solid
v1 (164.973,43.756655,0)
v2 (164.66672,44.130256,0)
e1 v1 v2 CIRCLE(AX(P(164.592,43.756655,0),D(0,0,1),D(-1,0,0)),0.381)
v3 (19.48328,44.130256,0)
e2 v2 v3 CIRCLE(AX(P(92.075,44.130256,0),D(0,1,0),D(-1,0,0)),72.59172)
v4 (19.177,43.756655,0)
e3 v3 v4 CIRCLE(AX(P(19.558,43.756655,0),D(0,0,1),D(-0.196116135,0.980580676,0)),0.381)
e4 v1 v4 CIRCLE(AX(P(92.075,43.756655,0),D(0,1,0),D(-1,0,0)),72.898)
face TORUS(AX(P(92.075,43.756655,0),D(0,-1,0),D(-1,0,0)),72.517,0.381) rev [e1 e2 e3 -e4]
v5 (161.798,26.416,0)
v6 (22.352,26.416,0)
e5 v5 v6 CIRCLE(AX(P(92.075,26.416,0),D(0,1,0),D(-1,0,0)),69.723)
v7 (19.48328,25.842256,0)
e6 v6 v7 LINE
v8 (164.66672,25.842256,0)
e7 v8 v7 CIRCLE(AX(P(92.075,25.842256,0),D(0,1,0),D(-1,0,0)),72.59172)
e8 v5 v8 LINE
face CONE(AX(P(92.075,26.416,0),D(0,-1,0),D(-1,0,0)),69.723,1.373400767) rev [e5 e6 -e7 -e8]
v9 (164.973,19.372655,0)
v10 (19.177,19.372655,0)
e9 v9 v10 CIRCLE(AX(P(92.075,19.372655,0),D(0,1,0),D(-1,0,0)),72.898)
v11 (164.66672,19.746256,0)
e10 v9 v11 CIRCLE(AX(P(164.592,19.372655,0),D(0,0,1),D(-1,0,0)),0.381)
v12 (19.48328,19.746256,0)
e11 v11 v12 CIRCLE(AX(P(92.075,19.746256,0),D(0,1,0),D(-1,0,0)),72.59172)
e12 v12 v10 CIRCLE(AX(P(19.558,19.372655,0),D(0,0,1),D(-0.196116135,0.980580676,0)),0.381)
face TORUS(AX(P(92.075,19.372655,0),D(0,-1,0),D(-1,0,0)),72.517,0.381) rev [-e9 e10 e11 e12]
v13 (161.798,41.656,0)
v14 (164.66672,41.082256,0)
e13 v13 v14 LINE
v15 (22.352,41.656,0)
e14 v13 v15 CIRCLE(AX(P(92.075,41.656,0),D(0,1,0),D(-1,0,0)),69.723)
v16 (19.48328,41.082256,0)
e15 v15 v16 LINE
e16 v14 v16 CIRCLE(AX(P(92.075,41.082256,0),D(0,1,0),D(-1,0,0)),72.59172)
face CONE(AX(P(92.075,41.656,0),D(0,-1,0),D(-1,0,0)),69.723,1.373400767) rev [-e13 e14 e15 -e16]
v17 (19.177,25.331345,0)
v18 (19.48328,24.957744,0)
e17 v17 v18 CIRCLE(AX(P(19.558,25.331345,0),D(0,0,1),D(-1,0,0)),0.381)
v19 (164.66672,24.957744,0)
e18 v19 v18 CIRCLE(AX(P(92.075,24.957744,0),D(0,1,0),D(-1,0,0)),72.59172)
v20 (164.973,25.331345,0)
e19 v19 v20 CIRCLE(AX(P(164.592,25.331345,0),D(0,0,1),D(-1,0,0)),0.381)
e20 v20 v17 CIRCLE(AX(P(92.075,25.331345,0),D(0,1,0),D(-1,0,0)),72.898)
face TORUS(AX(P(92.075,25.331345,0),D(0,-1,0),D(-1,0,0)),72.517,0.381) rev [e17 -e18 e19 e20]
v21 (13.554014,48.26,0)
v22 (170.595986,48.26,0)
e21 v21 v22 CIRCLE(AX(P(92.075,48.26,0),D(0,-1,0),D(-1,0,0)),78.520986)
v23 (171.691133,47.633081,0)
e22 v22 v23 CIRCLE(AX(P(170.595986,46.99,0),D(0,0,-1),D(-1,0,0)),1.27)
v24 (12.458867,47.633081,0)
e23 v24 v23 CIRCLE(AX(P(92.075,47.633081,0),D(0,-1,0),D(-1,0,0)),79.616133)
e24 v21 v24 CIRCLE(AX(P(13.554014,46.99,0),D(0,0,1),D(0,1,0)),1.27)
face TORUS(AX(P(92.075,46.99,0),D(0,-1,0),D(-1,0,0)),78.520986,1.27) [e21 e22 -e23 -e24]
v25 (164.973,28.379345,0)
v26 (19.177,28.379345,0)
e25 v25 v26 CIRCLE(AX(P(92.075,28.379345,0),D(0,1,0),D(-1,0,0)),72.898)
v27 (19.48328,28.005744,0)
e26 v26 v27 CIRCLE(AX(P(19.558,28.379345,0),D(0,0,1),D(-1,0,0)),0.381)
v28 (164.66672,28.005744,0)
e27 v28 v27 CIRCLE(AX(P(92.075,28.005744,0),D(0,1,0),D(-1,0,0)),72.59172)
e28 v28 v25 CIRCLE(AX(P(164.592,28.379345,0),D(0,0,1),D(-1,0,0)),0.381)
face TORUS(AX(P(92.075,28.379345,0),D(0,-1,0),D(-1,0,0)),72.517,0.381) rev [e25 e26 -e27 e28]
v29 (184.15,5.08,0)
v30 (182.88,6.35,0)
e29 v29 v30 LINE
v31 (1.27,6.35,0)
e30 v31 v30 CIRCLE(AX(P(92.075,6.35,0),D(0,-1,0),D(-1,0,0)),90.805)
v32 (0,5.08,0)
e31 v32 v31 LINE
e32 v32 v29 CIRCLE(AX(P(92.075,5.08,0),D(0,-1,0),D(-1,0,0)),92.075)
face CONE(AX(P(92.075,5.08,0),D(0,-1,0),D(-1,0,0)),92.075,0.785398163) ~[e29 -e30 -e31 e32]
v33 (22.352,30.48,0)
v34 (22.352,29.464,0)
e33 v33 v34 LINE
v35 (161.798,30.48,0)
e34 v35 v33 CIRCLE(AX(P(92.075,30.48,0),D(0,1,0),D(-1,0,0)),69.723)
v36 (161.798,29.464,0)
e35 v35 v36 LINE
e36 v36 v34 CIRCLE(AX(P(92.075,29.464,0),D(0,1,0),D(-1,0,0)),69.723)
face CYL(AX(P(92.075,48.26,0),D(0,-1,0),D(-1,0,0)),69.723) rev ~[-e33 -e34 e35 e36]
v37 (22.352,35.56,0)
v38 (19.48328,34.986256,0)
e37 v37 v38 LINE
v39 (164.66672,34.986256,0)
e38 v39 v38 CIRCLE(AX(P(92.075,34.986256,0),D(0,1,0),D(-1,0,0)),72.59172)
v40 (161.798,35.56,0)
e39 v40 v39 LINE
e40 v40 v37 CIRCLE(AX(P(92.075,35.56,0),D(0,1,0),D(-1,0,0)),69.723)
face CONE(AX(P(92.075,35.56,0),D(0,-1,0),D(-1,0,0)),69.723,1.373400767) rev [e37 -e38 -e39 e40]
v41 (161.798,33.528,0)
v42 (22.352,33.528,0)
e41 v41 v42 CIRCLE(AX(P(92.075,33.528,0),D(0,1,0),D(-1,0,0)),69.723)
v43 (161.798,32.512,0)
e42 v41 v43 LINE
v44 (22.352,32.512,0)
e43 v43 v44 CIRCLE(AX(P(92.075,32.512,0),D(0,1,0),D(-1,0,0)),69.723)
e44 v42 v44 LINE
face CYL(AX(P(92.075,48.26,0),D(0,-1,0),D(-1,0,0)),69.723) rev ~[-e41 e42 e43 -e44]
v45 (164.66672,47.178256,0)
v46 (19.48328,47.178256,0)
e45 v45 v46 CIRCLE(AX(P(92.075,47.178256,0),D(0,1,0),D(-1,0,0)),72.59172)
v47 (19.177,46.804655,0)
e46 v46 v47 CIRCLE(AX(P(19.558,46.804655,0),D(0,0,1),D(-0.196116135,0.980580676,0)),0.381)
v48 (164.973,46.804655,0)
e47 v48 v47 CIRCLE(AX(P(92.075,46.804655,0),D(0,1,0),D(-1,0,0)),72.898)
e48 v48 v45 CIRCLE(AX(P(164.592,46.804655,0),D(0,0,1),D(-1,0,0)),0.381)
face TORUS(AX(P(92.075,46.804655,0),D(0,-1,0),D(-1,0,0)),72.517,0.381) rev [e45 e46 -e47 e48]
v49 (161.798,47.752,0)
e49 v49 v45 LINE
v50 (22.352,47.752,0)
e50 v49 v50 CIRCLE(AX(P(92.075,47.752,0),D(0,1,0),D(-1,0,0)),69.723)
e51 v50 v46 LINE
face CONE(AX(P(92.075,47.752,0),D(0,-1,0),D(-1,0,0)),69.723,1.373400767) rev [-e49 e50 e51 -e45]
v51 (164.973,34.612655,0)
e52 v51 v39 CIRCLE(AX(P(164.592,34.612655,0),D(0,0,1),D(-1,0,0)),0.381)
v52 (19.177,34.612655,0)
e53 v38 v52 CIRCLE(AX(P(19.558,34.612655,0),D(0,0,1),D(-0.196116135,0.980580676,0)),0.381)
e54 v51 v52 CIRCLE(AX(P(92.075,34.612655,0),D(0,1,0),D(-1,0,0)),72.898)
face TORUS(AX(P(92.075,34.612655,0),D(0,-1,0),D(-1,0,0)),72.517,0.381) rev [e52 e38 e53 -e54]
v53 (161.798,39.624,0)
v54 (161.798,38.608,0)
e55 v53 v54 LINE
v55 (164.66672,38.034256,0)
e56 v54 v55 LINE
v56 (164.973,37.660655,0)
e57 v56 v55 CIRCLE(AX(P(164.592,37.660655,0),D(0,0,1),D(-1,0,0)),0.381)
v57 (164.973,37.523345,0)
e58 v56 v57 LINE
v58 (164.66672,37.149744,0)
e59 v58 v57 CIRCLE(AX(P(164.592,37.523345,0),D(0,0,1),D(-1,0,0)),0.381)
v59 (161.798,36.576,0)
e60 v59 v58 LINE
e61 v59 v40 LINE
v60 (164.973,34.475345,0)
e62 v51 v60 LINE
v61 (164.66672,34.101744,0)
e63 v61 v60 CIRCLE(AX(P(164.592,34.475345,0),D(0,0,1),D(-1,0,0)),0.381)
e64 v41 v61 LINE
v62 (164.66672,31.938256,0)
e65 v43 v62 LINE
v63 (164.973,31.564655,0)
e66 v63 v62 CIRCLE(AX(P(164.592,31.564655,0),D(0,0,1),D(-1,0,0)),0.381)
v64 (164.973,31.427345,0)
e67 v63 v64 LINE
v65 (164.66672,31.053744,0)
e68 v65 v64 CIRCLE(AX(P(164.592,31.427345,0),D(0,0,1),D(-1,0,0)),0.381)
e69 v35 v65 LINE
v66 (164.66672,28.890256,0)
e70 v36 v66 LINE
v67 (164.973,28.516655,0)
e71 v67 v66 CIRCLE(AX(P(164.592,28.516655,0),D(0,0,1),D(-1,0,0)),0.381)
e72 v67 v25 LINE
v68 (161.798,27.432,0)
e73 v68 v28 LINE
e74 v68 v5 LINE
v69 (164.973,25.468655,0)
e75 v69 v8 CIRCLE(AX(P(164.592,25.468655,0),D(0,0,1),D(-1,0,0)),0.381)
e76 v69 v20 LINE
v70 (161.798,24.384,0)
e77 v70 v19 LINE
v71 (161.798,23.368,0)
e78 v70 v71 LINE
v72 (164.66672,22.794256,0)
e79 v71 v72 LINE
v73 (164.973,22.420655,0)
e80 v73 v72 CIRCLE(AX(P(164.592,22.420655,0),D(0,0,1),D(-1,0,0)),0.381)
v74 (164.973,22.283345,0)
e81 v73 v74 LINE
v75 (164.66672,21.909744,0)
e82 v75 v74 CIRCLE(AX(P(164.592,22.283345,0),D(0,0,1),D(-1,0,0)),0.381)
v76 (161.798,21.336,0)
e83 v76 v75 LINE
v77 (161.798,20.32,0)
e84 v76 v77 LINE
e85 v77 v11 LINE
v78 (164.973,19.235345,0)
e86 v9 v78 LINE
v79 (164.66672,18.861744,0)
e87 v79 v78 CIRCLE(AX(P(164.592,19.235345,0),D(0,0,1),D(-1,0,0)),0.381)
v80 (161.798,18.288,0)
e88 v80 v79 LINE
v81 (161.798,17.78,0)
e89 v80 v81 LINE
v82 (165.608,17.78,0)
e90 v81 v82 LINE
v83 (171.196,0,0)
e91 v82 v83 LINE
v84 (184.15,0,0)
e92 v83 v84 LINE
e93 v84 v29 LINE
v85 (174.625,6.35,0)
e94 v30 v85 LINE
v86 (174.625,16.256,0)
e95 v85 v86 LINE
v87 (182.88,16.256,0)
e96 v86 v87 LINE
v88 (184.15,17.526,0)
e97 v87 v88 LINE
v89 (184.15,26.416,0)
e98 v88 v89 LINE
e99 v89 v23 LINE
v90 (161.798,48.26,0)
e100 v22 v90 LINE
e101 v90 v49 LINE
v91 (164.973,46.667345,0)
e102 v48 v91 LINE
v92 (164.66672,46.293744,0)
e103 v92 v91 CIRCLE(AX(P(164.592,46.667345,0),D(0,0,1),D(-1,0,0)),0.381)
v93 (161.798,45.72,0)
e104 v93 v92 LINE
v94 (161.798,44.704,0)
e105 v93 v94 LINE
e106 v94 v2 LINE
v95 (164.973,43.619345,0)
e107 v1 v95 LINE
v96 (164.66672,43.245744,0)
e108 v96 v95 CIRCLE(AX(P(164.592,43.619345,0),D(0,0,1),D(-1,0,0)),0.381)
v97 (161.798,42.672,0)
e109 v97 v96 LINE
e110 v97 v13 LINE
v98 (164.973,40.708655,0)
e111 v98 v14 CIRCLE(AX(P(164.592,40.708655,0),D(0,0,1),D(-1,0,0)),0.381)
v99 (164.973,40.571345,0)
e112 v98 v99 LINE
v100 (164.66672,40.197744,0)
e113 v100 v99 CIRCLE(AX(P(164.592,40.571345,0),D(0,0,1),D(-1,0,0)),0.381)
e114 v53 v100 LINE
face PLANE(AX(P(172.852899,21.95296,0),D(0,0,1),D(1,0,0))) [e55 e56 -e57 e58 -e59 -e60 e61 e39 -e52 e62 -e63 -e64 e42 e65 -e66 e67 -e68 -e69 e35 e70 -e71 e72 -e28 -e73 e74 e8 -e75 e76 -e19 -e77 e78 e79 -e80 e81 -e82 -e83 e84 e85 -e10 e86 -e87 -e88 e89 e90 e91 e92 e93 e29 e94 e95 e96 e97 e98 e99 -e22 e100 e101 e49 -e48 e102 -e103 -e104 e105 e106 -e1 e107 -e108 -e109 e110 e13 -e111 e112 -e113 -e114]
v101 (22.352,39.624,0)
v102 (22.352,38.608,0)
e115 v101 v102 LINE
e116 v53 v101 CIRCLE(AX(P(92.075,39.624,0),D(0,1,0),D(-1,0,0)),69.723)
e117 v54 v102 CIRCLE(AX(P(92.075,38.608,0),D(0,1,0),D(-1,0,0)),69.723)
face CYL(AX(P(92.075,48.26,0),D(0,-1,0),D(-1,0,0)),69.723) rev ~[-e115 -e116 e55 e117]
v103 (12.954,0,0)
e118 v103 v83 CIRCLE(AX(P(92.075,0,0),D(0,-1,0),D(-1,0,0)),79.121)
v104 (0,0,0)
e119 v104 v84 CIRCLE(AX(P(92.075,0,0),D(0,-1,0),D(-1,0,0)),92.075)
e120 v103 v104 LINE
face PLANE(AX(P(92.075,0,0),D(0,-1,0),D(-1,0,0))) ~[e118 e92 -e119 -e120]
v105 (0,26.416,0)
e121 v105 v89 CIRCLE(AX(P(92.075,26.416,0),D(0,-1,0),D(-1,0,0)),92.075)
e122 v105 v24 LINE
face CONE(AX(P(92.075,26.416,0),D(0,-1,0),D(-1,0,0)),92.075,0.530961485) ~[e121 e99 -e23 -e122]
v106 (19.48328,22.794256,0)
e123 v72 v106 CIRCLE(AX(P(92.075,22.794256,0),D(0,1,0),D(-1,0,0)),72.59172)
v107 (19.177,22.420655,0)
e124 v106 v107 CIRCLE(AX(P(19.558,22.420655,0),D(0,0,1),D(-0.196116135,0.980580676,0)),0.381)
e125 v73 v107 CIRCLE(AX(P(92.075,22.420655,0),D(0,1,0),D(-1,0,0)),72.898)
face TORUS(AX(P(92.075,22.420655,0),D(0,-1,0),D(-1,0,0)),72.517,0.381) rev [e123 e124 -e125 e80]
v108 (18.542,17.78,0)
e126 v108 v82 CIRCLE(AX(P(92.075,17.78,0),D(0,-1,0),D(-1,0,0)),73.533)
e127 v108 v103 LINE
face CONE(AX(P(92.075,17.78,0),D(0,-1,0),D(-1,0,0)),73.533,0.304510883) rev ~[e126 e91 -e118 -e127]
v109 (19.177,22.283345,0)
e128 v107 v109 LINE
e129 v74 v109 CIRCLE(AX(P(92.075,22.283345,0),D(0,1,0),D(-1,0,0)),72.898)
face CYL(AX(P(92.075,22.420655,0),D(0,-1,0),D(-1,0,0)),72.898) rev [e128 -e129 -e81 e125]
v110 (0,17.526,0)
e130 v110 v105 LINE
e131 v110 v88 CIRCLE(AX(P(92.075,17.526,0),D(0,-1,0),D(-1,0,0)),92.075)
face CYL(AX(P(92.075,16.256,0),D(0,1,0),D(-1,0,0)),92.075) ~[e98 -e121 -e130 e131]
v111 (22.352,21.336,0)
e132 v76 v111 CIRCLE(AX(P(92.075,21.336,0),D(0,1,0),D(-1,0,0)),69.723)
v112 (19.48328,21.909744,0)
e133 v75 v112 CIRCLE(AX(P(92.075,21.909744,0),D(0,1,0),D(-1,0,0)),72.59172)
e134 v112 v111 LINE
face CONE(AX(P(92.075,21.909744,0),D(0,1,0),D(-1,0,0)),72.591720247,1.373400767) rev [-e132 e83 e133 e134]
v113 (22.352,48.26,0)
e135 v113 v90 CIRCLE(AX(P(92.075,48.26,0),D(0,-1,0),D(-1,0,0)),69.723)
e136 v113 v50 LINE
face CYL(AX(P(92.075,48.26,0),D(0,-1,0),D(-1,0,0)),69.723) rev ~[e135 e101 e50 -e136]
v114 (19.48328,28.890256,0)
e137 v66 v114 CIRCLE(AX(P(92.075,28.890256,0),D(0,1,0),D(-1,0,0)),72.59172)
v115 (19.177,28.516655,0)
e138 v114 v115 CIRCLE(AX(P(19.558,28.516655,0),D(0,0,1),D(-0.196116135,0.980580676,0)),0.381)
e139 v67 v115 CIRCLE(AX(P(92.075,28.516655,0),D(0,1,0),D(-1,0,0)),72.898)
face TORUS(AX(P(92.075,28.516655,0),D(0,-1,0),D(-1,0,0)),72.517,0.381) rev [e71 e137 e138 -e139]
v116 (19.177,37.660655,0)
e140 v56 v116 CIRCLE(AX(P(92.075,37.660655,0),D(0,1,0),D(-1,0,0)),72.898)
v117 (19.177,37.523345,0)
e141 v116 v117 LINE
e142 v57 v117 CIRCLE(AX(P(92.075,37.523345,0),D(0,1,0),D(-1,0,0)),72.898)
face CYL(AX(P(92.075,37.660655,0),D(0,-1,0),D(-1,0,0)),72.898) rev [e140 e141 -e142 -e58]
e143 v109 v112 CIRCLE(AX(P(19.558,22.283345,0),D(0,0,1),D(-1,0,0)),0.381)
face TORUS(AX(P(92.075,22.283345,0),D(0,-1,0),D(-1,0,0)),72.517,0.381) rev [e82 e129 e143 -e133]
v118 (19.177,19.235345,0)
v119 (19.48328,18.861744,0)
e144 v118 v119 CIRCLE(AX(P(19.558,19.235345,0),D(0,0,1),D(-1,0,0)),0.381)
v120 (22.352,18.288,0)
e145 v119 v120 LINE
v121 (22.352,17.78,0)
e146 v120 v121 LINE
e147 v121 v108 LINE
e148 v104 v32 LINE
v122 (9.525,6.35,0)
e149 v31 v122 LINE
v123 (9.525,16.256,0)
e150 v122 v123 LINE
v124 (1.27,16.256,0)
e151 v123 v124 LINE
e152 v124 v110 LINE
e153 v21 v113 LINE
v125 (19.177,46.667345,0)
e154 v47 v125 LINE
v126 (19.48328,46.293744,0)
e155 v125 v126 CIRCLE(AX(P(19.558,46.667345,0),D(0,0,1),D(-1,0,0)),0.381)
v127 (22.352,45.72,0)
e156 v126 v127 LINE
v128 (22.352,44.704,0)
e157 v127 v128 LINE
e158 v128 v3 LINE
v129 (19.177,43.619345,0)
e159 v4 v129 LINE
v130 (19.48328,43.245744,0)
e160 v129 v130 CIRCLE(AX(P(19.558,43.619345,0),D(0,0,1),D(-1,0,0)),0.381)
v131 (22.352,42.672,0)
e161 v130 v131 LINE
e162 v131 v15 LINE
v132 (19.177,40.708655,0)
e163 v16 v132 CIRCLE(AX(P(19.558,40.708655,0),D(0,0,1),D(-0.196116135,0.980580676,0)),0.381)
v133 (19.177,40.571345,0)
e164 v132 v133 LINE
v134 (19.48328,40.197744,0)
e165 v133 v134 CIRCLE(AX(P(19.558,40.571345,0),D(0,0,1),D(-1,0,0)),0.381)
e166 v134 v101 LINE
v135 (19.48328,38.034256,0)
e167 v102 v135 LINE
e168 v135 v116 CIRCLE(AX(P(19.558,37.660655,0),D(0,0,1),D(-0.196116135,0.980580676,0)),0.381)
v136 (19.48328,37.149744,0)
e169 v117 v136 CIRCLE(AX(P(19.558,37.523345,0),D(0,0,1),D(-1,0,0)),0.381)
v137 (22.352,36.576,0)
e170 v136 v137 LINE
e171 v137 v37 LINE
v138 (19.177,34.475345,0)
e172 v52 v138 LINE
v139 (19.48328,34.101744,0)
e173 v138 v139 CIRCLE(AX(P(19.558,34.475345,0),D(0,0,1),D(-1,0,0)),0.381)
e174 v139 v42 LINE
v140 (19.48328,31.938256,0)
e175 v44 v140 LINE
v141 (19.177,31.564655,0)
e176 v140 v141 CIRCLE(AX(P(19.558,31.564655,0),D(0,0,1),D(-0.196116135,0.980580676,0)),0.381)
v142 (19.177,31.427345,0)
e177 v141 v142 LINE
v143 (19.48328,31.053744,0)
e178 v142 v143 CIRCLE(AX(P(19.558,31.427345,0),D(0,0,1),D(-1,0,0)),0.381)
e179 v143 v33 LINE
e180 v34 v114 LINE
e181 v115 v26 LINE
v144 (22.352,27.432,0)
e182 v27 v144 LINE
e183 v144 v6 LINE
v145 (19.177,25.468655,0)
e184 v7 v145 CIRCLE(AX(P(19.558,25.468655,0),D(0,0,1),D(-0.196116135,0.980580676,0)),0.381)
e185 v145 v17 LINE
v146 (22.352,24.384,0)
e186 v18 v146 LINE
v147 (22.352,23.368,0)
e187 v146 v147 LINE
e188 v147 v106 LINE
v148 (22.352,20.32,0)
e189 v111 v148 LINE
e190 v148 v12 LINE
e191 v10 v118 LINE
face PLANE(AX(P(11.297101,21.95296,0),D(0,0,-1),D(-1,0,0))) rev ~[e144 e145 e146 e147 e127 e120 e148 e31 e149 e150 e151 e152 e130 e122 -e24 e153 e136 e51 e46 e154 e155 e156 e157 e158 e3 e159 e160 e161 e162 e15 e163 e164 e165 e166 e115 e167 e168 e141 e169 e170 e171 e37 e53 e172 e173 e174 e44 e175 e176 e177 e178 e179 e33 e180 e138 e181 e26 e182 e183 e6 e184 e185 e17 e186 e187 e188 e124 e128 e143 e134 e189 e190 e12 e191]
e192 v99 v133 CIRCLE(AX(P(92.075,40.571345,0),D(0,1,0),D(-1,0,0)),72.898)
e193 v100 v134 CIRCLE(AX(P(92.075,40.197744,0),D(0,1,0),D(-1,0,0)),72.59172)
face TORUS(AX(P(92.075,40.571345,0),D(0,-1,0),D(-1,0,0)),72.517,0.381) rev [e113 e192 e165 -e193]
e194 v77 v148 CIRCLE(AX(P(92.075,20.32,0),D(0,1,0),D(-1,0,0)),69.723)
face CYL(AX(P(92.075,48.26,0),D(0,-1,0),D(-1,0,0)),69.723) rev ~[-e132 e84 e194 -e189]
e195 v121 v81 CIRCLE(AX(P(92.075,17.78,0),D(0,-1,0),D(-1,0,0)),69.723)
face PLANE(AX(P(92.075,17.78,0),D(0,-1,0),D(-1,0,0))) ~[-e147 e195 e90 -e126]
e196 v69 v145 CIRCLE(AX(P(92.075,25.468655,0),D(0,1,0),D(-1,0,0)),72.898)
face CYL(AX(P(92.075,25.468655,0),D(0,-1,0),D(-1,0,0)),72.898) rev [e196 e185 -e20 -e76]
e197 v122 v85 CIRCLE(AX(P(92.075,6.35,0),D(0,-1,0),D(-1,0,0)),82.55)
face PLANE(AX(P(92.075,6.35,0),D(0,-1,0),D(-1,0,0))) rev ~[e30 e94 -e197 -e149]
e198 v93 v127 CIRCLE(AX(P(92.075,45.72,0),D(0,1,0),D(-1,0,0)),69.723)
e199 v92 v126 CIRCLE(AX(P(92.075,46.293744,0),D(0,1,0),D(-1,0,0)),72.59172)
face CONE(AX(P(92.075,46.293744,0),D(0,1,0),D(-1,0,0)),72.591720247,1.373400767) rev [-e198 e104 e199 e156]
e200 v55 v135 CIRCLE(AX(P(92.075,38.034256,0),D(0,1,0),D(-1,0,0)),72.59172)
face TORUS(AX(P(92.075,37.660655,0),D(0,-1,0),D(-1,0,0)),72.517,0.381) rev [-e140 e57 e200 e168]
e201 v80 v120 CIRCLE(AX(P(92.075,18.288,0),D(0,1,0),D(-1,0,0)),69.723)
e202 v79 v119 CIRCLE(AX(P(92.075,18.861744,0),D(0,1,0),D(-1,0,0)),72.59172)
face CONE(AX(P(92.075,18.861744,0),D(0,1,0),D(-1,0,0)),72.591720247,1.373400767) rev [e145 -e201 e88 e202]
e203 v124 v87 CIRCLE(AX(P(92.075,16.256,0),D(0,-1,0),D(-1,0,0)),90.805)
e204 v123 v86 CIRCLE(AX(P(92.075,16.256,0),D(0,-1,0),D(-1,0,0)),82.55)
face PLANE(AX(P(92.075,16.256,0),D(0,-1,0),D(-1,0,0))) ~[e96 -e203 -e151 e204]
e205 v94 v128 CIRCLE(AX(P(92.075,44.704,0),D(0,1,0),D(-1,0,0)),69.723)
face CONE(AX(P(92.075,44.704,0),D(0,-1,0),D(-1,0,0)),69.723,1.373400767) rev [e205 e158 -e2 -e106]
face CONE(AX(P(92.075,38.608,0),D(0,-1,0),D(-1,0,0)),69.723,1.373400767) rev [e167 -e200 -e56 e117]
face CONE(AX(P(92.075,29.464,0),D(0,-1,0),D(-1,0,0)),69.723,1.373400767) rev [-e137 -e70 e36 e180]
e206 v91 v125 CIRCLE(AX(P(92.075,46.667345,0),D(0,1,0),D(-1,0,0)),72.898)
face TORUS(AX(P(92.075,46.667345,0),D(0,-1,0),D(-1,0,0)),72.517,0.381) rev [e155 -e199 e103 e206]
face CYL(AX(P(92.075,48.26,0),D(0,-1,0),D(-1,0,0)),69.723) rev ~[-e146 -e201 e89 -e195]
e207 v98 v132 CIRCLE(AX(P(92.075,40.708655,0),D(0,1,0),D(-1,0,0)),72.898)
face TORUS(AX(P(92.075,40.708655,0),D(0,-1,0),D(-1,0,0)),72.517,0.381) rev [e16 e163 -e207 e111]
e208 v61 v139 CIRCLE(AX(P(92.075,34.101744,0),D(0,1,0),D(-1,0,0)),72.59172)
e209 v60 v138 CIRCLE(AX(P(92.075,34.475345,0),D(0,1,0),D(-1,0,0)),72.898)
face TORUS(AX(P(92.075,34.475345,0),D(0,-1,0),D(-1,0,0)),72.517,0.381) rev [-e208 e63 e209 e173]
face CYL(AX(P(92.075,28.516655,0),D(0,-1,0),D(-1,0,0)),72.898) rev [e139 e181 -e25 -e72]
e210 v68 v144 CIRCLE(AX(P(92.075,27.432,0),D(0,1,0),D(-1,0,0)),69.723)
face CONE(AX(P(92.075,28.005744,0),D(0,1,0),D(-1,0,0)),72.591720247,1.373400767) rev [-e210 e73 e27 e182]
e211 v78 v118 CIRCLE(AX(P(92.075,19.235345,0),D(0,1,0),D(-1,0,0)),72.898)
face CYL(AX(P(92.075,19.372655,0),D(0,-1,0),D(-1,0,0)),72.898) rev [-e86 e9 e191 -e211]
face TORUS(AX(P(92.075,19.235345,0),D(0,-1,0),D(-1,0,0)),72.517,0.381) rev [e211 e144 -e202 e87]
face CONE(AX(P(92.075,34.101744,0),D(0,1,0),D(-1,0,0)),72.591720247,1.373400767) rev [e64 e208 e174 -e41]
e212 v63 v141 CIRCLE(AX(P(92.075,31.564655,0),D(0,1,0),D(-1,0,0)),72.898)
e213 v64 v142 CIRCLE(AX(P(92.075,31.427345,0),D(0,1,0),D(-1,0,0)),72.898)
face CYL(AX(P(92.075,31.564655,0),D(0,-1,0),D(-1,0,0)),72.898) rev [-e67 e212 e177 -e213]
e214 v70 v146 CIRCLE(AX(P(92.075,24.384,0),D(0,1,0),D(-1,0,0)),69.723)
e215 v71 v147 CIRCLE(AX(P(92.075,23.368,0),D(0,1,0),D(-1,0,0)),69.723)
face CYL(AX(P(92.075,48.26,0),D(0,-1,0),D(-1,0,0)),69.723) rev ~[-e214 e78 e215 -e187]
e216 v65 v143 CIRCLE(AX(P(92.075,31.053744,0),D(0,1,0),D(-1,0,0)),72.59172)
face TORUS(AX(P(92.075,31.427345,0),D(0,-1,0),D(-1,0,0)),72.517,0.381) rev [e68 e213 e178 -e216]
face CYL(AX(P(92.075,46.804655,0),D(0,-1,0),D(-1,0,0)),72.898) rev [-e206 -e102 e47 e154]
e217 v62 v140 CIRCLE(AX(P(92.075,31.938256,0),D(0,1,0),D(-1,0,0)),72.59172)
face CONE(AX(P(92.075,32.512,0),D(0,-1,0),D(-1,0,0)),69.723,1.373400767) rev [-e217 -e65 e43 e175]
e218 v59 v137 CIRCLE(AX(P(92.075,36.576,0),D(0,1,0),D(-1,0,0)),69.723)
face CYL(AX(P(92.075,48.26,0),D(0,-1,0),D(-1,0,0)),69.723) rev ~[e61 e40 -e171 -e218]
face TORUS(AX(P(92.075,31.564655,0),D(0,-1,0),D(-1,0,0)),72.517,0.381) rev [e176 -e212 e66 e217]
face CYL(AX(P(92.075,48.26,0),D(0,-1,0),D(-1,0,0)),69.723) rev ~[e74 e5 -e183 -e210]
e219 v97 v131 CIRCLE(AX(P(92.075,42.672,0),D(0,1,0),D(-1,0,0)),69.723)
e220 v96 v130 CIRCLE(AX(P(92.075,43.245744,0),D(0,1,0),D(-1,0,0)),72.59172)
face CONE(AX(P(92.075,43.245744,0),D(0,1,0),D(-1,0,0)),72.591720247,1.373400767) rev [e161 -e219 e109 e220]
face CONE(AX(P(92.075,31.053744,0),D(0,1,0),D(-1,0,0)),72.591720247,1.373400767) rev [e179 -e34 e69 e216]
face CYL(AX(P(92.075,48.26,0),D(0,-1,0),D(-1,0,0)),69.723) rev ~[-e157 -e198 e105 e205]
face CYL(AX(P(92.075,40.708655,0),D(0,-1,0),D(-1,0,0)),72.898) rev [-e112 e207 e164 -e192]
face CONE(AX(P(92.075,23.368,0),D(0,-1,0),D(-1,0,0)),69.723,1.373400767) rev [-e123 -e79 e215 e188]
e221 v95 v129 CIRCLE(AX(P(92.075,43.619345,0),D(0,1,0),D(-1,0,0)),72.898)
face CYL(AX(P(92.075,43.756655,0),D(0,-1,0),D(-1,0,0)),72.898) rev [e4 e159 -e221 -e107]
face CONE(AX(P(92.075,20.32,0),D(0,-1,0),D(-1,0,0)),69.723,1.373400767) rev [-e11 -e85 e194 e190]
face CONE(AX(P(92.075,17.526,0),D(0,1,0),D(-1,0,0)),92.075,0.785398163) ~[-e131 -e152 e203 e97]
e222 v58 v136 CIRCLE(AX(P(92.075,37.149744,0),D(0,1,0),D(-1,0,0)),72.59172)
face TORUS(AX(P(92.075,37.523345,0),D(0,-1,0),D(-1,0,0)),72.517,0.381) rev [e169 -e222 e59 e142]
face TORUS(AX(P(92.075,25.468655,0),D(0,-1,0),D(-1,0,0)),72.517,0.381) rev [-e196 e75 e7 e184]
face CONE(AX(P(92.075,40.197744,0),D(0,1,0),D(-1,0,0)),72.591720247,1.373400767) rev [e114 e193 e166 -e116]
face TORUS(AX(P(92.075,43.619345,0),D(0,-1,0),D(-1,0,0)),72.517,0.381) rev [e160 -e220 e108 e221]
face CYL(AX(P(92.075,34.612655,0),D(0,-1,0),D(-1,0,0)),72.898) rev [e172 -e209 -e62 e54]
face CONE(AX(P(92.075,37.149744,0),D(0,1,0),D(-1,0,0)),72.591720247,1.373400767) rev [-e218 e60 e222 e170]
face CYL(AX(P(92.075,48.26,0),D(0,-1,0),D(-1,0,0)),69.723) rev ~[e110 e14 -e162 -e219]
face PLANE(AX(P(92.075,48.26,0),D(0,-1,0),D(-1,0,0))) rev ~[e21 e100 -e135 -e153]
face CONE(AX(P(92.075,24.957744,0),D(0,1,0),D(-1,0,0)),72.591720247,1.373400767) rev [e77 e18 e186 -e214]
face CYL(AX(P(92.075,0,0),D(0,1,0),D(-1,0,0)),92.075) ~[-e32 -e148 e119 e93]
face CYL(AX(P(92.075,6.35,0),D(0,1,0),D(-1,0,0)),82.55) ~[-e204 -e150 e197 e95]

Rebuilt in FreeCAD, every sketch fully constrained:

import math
import FreeCAD as App
import Part
import Sketcher

V = App.Vector
Q = App.Units.Quantity


def edges_at(feature, points):
    """Names of the edges that pass closest to the given points."""
    edges = feature.Shape.Edges
    near = lambda p: min(range(len(edges)), key=lambda i: edges[i].distToShape(Part.Vertex(*p))[0])
    return sorted({f"Edge{near(p) + 1}" for p in points})

doc = App.newDocument("Part")
body = doc.addObject("PartDesign::Body", "Body")

# Sketch on XY plane
sketch1 = body.newObject("Sketcher::SketchObject", "Sketch")
sketch1.AttachmentSupport = (doc.getObject("XY_Plane"), [""])
sketch1.MapMode = "FlatFace"
sketch1.addGeometry(Part.LineSegment(V(0, 6.3, 0), V(0, 0, 0)), False)
sketch1.addGeometry(Part.LineSegment(V(0, 0, 0), V(13, 0, 0)), False)
sketch1.addGeometry(Part.LineSegment(V(13, 0, 0), V(18.5, 17.8, 0)), False)
sketch1.addGeometry(Part.LineSegment(V(18.5, 17.8, 0), V(22.4, 17.8, 0)), False)
sketch1.addGeometry(Part.LineSegment(V(22.4, 17.8, 0), V(22.4, 48.3, 0)), False)
sketch1.addGeometry(Part.LineSegment(V(22.4, 48.3, 0), V(12.8, 48.3, 0)), False)
sketch1.addGeometry(Part.LineSegment(V(12.8, 48.3, 0), V(0, 26.4, 0)), False)
sketch1.addGeometry(Part.LineSegment(V(0, 26.4, 0), V(0, 16.3, 0)), False)
sketch1.addGeometry(Part.LineSegment(V(0, 16.3, 0), V(9.5, 16.3, 0)), False)
sketch1.addGeometry(Part.LineSegment(V(9.5, 16.3, 0), V(9.5, 6.3, 0)), False)
sketch1.addGeometry(Part.LineSegment(V(9.5, 6.3, 0), V(0, 6.3, 0)), False)
sketch1.addGeometry(Part.LineSegment(V(92.1, 48.3, 0), V(92.1, 0, 0)), True)  # axis
sketch1.addConstraint(Sketcher.Constraint("Coincident", 0, 2, 1, 1))
sketch1.addConstraint(Sketcher.Constraint("Coincident", 1, 2, 2, 1))
sketch1.addConstraint(Sketcher.Constraint("Coincident", 2, 2, 3, 1))
sketch1.addConstraint(Sketcher.Constraint("Coincident", 3, 2, 4, 1))
sketch1.addConstraint(Sketcher.Constraint("Coincident", 4, 2, 5, 1))
sketch1.addConstraint(Sketcher.Constraint("Coincident", 5, 2, 6, 1))
sketch1.addConstraint(Sketcher.Constraint("Coincident", 6, 2, 7, 1))
sketch1.addConstraint(Sketcher.Constraint("Coincident", 7, 2, 8, 1))
sketch1.addConstraint(Sketcher.Constraint("Coincident", 8, 2, 9, 1))
sketch1.addConstraint(Sketcher.Constraint("Coincident", 9, 2, 10, 1))
sketch1.addConstraint(Sketcher.Constraint("Coincident", 10, 2, 0, 1))
sketch1.addConstraint(Sketcher.Constraint("Vertical", 0))
sketch1.addConstraint(Sketcher.Constraint("Horizontal", 1))
sketch1.addConstraint(Sketcher.Constraint("Horizontal", 3))
sketch1.addConstraint(Sketcher.Constraint("Vertical", 4))
sketch1.addConstraint(Sketcher.Constraint("Horizontal", 5))
sketch1.addConstraint(Sketcher.Constraint("Vertical", 7))
sketch1.addConstraint(Sketcher.Constraint("Horizontal", 8))
sketch1.addConstraint(Sketcher.Constraint("Vertical", 9))
sketch1.addConstraint(Sketcher.Constraint("Horizontal", 10))
sketch1.addConstraint(Sketcher.Constraint("Vertical", 11))
sketch1.addConstraint(Sketcher.Constraint("Coincident", 0, 2, -1, 1))
sketch1.addConstraint(Sketcher.Constraint("PointOnObject", 6, 2, -2))
sketch1.addConstraint(Sketcher.Constraint("PointOnObject", 11, 2, -1))
sketch1.addConstraint(Sketcher.Constraint("Horizontal", 5, 2, 11, 1))
sketch1.addConstraint(Sketcher.Constraint("Equal", 5, 8))
sketch1.addConstraint(Sketcher.Constraint("DistanceY", 4, 1, 4, 2, Q("1.2 in")))
sketch1.addConstraint(Sketcher.Constraint("DistanceY", 7, 2, 7, 1, Q("0.4 in")))
sketch1.addConstraint(Sketcher.Constraint("DistanceY", 11, 2, 11, 1, Q("1.9 in")))
sketch1.addConstraint(Sketcher.Constraint("DistanceX", 1, 1, 1, 2, Q("0.51 in")))
sketch1.addConstraint(Sketcher.Constraint("DistanceX", 3, 1, 3, 2, Q("0.15 in")))
sketch1.addConstraint(Sketcher.Constraint("DistanceY", 0, 2, 0, 1, Q("0.25 in")))
sketch1.addConstraint(Sketcher.Constraint("DistanceY", 9, 2, 9, 1, Q("0.39 in")))
sketch1.addConstraint(Sketcher.Constraint("DistanceX", 5, 2, 5, 1, Q("0.375 in")))
sketch1.addConstraint(Sketcher.Constraint("DistanceX", -1, 1, 2, 2, Q("0.73 in")))
sketch1.addConstraint(Sketcher.Constraint("DistanceX", 5, 2, 11, 1, Q("3.12 in")))
revolution = body.newObject("PartDesign::Revolution", "Revolution")
revolution.Profile = sketch1
revolution.ReferenceAxis = (sketch1, ["Axis0"])
revolution.Angle = 180
doc.recompute()

chamfer = body.newObject("PartDesign::Chamfer", "Chamfer")
chamfer.Base = (revolution, edges_at(revolution, [(92.075, 16.256, -92.075), (92.075, 6.35, -92.075)]))
chamfer.Size = Q("0.05 in")
doc.recompute()

fillet = body.newObject("PartDesign::Fillet", "Fillet")
fillet.Base = (chamfer, edges_at(chamfer, [(92.075, 48.26, -79.248)]))
fillet.Radius = Q("0.05 in")

# Sketch on XY plane
sketch2 = body.newObject("Sketcher::SketchObject", "Sketch001")
sketch2.AttachmentSupport = (doc.getObject("XY_Plane"), [""])
sketch2.MapMode = "FlatFace"
sketch2.addGeometry(Part.LineSegment(V(22.35, 18.29, 0), V(22.35, 20.32, 0)), False)
sketch2.addGeometry(Part.LineSegment(V(22.35, 20.32, 0), V(19.48, 19.75, 0)), False)
sketch2.addGeometry(Part.ArcOfCircle(Part.Circle(V(19.56, 19.37, 0), V(0, 0, 1), 0.38), math.radians(101), math.radians(180)), False)
sketch2.addGeometry(Part.LineSegment(V(19.18, 19.37, 0), V(19.18, 19.24, 0)), False)
sketch2.addGeometry(Part.ArcOfCircle(Part.Circle(V(19.56, 19.24, 0), V(0, 0, 1), 0.38), math.radians(180), math.radians(259)), False)
sketch2.addGeometry(Part.LineSegment(V(19.48, 18.86, 0), V(22.35, 18.29, 0)), False)
sketch2.addGeometry(Part.LineSegment(V(22.35, 21.34, 0), V(22.35, 23.37, 0)), False)
sketch2.addGeometry(Part.LineSegment(V(22.35, 23.37, 0), V(19.48, 22.79, 0)), False)
sketch2.addGeometry(Part.ArcOfCircle(Part.Circle(V(19.56, 22.42, 0), V(0, 0, 1), 0.38), math.radians(101), math.radians(180)), False)
sketch2.addGeometry(Part.LineSegment(V(19.18, 22.42, 0), V(19.18, 22.28, 0)), False)
sketch2.addGeometry(Part.ArcOfCircle(Part.Circle(V(19.56, 22.28, 0), V(0, 0, 1), 0.38), math.radians(180), math.radians(259)), False)
sketch2.addGeometry(Part.LineSegment(V(19.48, 21.91, 0), V(22.35, 21.34, 0)), False)
sketch2.addGeometry(Part.LineSegment(V(22.35, 24.38, 0), V(22.35, 26.42, 0)), False)
sketch2.addGeometry(Part.LineSegment(V(22.35, 26.42, 0), V(19.48, 25.84, 0)), False)
sketch2.addGeometry(Part.ArcOfCircle(Part.Circle(V(19.56, 25.47, 0), V(0, 0, 1), 0.38), math.radians(101), math.radians(180)), False)
sketch2.addGeometry(Part.LineSegment(V(19.18, 25.47, 0), V(19.18, 25.33, 0)), False)
sketch2.addGeometry(Part.ArcOfCircle(Part.Circle(V(19.56, 25.33, 0), V(0, 0, 1), 0.38), math.radians(180), math.radians(259)), False)
sketch2.addGeometry(Part.LineSegment(V(19.48, 24.96, 0), V(22.35, 24.38, 0)), False)
sketch2.addGeometry(Part.LineSegment(V(22.35, 27.43, 0), V(22.35, 29.46, 0)), False)
sketch2.addGeometry(Part.LineSegment(V(22.35, 29.46, 0), V(19.48, 28.89, 0)), False)
sketch2.addGeometry(Part.ArcOfCircle(Part.Circle(V(19.56, 28.52, 0), V(0, 0, 1), 0.38), math.radians(101), math.radians(180)), False)
sketch2.addGeometry(Part.LineSegment(V(19.18, 28.52, 0), V(19.18, 28.38, 0)), False)
sketch2.addGeometry(Part.ArcOfCircle(Part.Circle(V(19.56, 28.38, 0), V(0, 0, 1), 0.38), math.radians(180), math.radians(259)), False)
sketch2.addGeometry(Part.LineSegment(V(19.48, 28.01, 0), V(22.35, 27.43, 0)), False)
sketch2.addGeometry(Part.LineSegment(V(22.35, 30.48, 0), V(22.35, 32.51, 0)), False)
sketch2.addGeometry(Part.LineSegment(V(22.35, 32.51, 0), V(19.48, 31.94, 0)), False)
sketch2.addGeometry(Part.ArcOfCircle(Part.Circle(V(19.56, 31.56, 0), V(0, 0, 1), 0.38), math.radians(101), math.radians(180)), False)
sketch2.addGeometry(Part.LineSegment(V(19.18, 31.56, 0), V(19.18, 31.43, 0)), False)
sketch2.addGeometry(Part.ArcOfCircle(Part.Circle(V(19.56, 31.43, 0), V(0, 0, 1), 0.38), math.radians(180), math.radians(259)), False)
sketch2.addGeometry(Part.LineSegment(V(19.48, 31.05, 0), V(22.35, 30.48, 0)), False)
sketch2.addGeometry(Part.LineSegment(V(22.35, 33.53, 0), V(22.35, 35.56, 0)), False)
sketch2.addGeometry(Part.LineSegment(V(22.35, 35.56, 0), V(19.48, 34.99, 0)), False)
sketch2.addGeometry(Part.ArcOfCircle(Part.Circle(V(19.56, 34.61, 0), V(0, 0, 1), 0.38), math.radians(101), math.radians(180)), False)
sketch2.addGeometry(Part.LineSegment(V(19.18, 34.61, 0), V(19.18, 34.48, 0)), False)
sketch2.addGeometry(Part.ArcOfCircle(Part.Circle(V(19.56, 34.48, 0), V(0, 0, 1), 0.38), math.radians(180), math.radians(259)), False)
sketch2.addGeometry(Part.LineSegment(V(19.48, 34.1, 0), V(22.35, 33.53, 0)), False)
sketch2.addGeometry(Part.LineSegment(V(22.35, 36.58, 0), V(22.35, 38.61, 0)), False)
sketch2.addGeometry(Part.LineSegment(V(22.35, 38.61, 0), V(19.48, 38.03, 0)), False)
sketch2.addGeometry(Part.ArcOfCircle(Part.Circle(V(19.56, 37.66, 0), V(0, 0, 1), 0.38), math.radians(101), math.radians(180)), False)
sketch2.addGeometry(Part.LineSegment(V(19.18, 37.66, 0), V(19.18, 37.52, 0)), False)
sketch2.addGeometry(Part.ArcOfCircle(Part.Circle(V(19.56, 37.52, 0), V(0, 0, 1), 0.38), math.radians(180), math.radians(259)), False)
sketch2.addGeometry(Part.LineSegment(V(19.48, 37.15, 0), V(22.35, 36.58, 0)), False)
sketch2.addGeometry(Part.LineSegment(V(22.35, 39.62, 0), V(22.35, 41.66, 0)), False)
sketch2.addGeometry(Part.LineSegment(V(22.35, 41.66, 0), V(19.48, 41.08, 0)), False)
sketch2.addGeometry(Part.ArcOfCircle(Part.Circle(V(19.56, 40.71, 0), V(0, 0, 1), 0.38), math.radians(101), math.radians(180)), False)
sketch2.addGeometry(Part.LineSegment(V(19.18, 40.71, 0), V(19.18, 40.57, 0)), False)
sketch2.addGeometry(Part.ArcOfCircle(Part.Circle(V(19.56, 40.57, 0), V(0, 0, 1), 0.38), math.radians(180), math.radians(259)), False)
sketch2.addGeometry(Part.LineSegment(V(19.48, 40.2, 0), V(22.35, 39.62, 0)), False)
sketch2.addGeometry(Part.LineSegment(V(22.35, 42.67, 0), V(22.35, 44.7, 0)), False)
sketch2.addGeometry(Part.LineSegment(V(22.35, 44.7, 0), V(19.48, 44.13, 0)), False)
sketch2.addGeometry(Part.ArcOfCircle(Part.Circle(V(19.56, 43.76, 0), V(0, 0, 1), 0.38), math.radians(101), math.radians(180)), False)
sketch2.addGeometry(Part.LineSegment(V(19.18, 43.76, 0), V(19.18, 43.62, 0)), False)
sketch2.addGeometry(Part.ArcOfCircle(Part.Circle(V(19.56, 43.62, 0), V(0, 0, 1), 0.38), math.radians(180), math.radians(259)), False)
sketch2.addGeometry(Part.LineSegment(V(19.48, 43.25, 0), V(22.35, 42.67, 0)), False)
sketch2.addGeometry(Part.LineSegment(V(22.35, 45.72, 0), V(22.35, 47.75, 0)), False)
sketch2.addGeometry(Part.LineSegment(V(22.35, 47.75, 0), V(19.48, 47.18, 0)), False)
sketch2.addGeometry(Part.ArcOfCircle(Part.Circle(V(19.56, 46.8, 0), V(0, 0, 1), 0.38), math.radians(101), math.radians(180)), False)
sketch2.addGeometry(Part.LineSegment(V(19.18, 46.8, 0), V(19.18, 46.67, 0)), False)
sketch2.addGeometry(Part.ArcOfCircle(Part.Circle(V(19.56, 46.67, 0), V(0, 0, 1), 0.38), math.radians(180), math.radians(259)), False)
sketch2.addGeometry(Part.LineSegment(V(19.48, 46.29, 0), V(22.35, 45.72, 0)), False)
sketch2.addGeometry(Part.LineSegment(V(92.08, 18.29, 0), V(92.08, 47.75, 0)), True)  # axis
sketch2.addConstraint(Sketcher.Constraint("Coincident", 0, 2, 1, 1))
sketch2.addConstraint(Sketcher.Constraint("Tangent", 1, 2, 2, 1))
sketch2.addConstraint(Sketcher.Constraint("Tangent", 2, 2, 3, 1))
sketch2.addConstraint(Sketcher.Constraint("Tangent", 3, 2, 4, 1))
sketch2.addConstraint(Sketcher.Constraint("Tangent", 4, 2, 5, 1))
sketch2.addConstraint(Sketcher.Constraint("Coincident", 5, 2, 0, 1))
sketch2.addConstraint(Sketcher.Constraint("Coincident", 6, 2, 7, 1))
sketch2.addConstraint(Sketcher.Constraint("Tangent", 7, 2, 8, 1))
sketch2.addConstraint(Sketcher.Constraint("Tangent", 8, 2, 9, 1))
sketch2.addConstraint(Sketcher.Constraint("Tangent", 9, 2, 10, 1))
sketch2.addConstraint(Sketcher.Constraint("Tangent", 10, 2, 11, 1))
sketch2.addConstraint(Sketcher.Constraint("Coincident", 11, 2, 6, 1))
sketch2.addConstraint(Sketcher.Constraint("Coincident", 12, 2, 13, 1))
sketch2.addConstraint(Sketcher.Constraint("Tangent", 13, 2, 14, 1))
sketch2.addConstraint(Sketcher.Constraint("Tangent", 14, 2, 15, 1))
sketch2.addConstraint(Sketcher.Constraint("Tangent", 15, 2, 16, 1))
sketch2.addConstraint(Sketcher.Constraint("Tangent", 16, 2, 17, 1))
sketch2.addConstraint(Sketcher.Constraint("Coincident", 17, 2, 12, 1))
sketch2.addConstraint(Sketcher.Constraint("Coincident", 18, 2, 19, 1))
sketch2.addConstraint(Sketcher.Constraint("Tangent", 19, 2, 20, 1))
sketch2.addConstraint(Sketcher.Constraint("Tangent", 20, 2, 21, 1))
sketch2.addConstraint(Sketcher.Constraint("Tangent", 21, 2, 22, 1))
sketch2.addConstraint(Sketcher.Constraint("Tangent", 22, 2, 23, 1))
sketch2.addConstraint(Sketcher.Constraint("Coincident", 23, 2, 18, 1))
sketch2.addConstraint(Sketcher.Constraint("Coincident", 24, 2, 25, 1))
sketch2.addConstraint(Sketcher.Constraint("Tangent", 25, 2, 26, 1))
sketch2.addConstraint(Sketcher.Constraint("Tangent", 26, 2, 27, 1))
sketch2.addConstraint(Sketcher.Constraint("Tangent", 27, 2, 28, 1))
sketch2.addConstraint(Sketcher.Constraint("Tangent", 28, 2, 29, 1))
sketch2.addConstraint(Sketcher.Constraint("Coincident", 29, 2, 24, 1))
sketch2.addConstraint(Sketcher.Constraint("Coincident", 30, 2, 31, 1))
sketch2.addConstraint(Sketcher.Constraint("Tangent", 31, 2, 32, 1))
sketch2.addConstraint(Sketcher.Constraint("Tangent", 32, 2, 33, 1))
sketch2.addConstraint(Sketcher.Constraint("Tangent", 33, 2, 34, 1))
sketch2.addConstraint(Sketcher.Constraint("Tangent", 34, 2, 35, 1))
sketch2.addConstraint(Sketcher.Constraint("Coincident", 35, 2, 30, 1))
sketch2.addConstraint(Sketcher.Constraint("Coincident", 36, 2, 37, 1))
sketch2.addConstraint(Sketcher.Constraint("Tangent", 37, 2, 38, 1))
sketch2.addConstraint(Sketcher.Constraint("Tangent", 38, 2, 39, 1))
sketch2.addConstraint(Sketcher.Constraint("Tangent", 39, 2, 40, 1))
sketch2.addConstraint(Sketcher.Constraint("Tangent", 40, 2, 41, 1))
sketch2.addConstraint(Sketcher.Constraint("Coincident", 41, 2, 36, 1))
sketch2.addConstraint(Sketcher.Constraint("Coincident", 42, 2, 43, 1))
sketch2.addConstraint(Sketcher.Constraint("Tangent", 43, 2, 44, 1))
sketch2.addConstraint(Sketcher.Constraint("Tangent", 44, 2, 45, 1))
sketch2.addConstraint(Sketcher.Constraint("Tangent", 45, 2, 46, 1))
sketch2.addConstraint(Sketcher.Constraint("Tangent", 46, 2, 47, 1))
sketch2.addConstraint(Sketcher.Constraint("Coincident", 47, 2, 42, 1))
sketch2.addConstraint(Sketcher.Constraint("Coincident", 48, 2, 49, 1))
sketch2.addConstraint(Sketcher.Constraint("Tangent", 49, 2, 50, 1))
sketch2.addConstraint(Sketcher.Constraint("Tangent", 50, 2, 51, 1))
sketch2.addConstraint(Sketcher.Constraint("Tangent", 51, 2, 52, 1))
sketch2.addConstraint(Sketcher.Constraint("Tangent", 52, 2, 53, 1))
sketch2.addConstraint(Sketcher.Constraint("Coincident", 53, 2, 48, 1))
sketch2.addConstraint(Sketcher.Constraint("Coincident", 54, 2, 55, 1))
sketch2.addConstraint(Sketcher.Constraint("Tangent", 55, 2, 56, 1))
sketch2.addConstraint(Sketcher.Constraint("Tangent", 56, 2, 57, 1))
sketch2.addConstraint(Sketcher.Constraint("Tangent", 57, 2, 58, 1))
sketch2.addConstraint(Sketcher.Constraint("Tangent", 58, 2, 59, 1))
sketch2.addConstraint(Sketcher.Constraint("Coincident", 59, 2, 54, 1))
sketch2.addConstraint(Sketcher.Constraint("Vertical", 0))
sketch2.addConstraint(Sketcher.Constraint("Vertical", 3))
sketch2.addConstraint(Sketcher.Constraint("Vertical", 6))
sketch2.addConstraint(Sketcher.Constraint("Vertical", 9))
sketch2.addConstraint(Sketcher.Constraint("Vertical", 12))
sketch2.addConstraint(Sketcher.Constraint("Vertical", 15))
sketch2.addConstraint(Sketcher.Constraint("Vertical", 18))
sketch2.addConstraint(Sketcher.Constraint("Vertical", 21))
sketch2.addConstraint(Sketcher.Constraint("Vertical", 24))
sketch2.addConstraint(Sketcher.Constraint("Vertical", 27))
sketch2.addConstraint(Sketcher.Constraint("Vertical", 30))
sketch2.addConstraint(Sketcher.Constraint("Vertical", 33))
sketch2.addConstraint(Sketcher.Constraint("Vertical", 36))
sketch2.addConstraint(Sketcher.Constraint("Vertical", 39))
sketch2.addConstraint(Sketcher.Constraint("Vertical", 42))
sketch2.addConstraint(Sketcher.Constraint("Vertical", 45))
sketch2.addConstraint(Sketcher.Constraint("Vertical", 48))
sketch2.addConstraint(Sketcher.Constraint("Vertical", 51))
sketch2.addConstraint(Sketcher.Constraint("Vertical", 54))
sketch2.addConstraint(Sketcher.Constraint("Vertical", 57))
sketch2.addConstraint(Sketcher.Constraint("Vertical", 60))
sketch2.addConstraint(Sketcher.Constraint("Equal", 2, 4))
sketch2.addConstraint(Sketcher.Constraint("Equal", 4, 8))
sketch2.addConstraint(Sketcher.Constraint("Equal", 8, 10))
sketch2.addConstraint(Sketcher.Constraint("Equal", 10, 14))
sketch2.addConstraint(Sketcher.Constraint("Equal", 14, 16))
sketch2.addConstraint(Sketcher.Constraint("Equal", 16, 20))
sketch2.addConstraint(Sketcher.Constraint("Equal", 20, 22))
sketch2.addConstraint(Sketcher.Constraint("Equal", 22, 26))
sketch2.addConstraint(Sketcher.Constraint("Equal", 26, 28))
sketch2.addConstraint(Sketcher.Constraint("Equal", 28, 32))
sketch2.addConstraint(Sketcher.Constraint("Equal", 32, 34))
sketch2.addConstraint(Sketcher.Constraint("Equal", 34, 38))
sketch2.addConstraint(Sketcher.Constraint("Equal", 38, 40))
sketch2.addConstraint(Sketcher.Constraint("Equal", 40, 44))
sketch2.addConstraint(Sketcher.Constraint("Equal", 44, 46))
sketch2.addConstraint(Sketcher.Constraint("Equal", 46, 50))
sketch2.addConstraint(Sketcher.Constraint("Equal", 50, 52))
sketch2.addConstraint(Sketcher.Constraint("Equal", 52, 56))
sketch2.addConstraint(Sketcher.Constraint("Equal", 56, 58))
sketch2.addConstraint(Sketcher.Constraint("Parallel", 1, 7))
sketch2.addConstraint(Sketcher.Constraint("Parallel", 5, 11))
sketch2.addConstraint(Sketcher.Constraint("Parallel", 7, 13))
sketch2.addConstraint(Sketcher.Constraint("Parallel", 11, 17))
sketch2.addConstraint(Sketcher.Constraint("Parallel", 13, 19))
sketch2.addConstraint(Sketcher.Constraint("Parallel", 17, 23))
sketch2.addConstraint(Sketcher.Constraint("Parallel", 19, 25))
sketch2.addConstraint(Sketcher.Constraint("Parallel", 23, 29))
sketch2.addConstraint(Sketcher.Constraint("Parallel", 25, 31))
sketch2.addConstraint(Sketcher.Constraint("Parallel", 29, 35))
sketch2.addConstraint(Sketcher.Constraint("Parallel", 31, 37))
sketch2.addConstraint(Sketcher.Constraint("Parallel", 35, 41))
sketch2.addConstraint(Sketcher.Constraint("Parallel", 37, 43))
sketch2.addConstraint(Sketcher.Constraint("Parallel", 41, 47))
sketch2.addConstraint(Sketcher.Constraint("Parallel", 43, 49))
sketch2.addConstraint(Sketcher.Constraint("Parallel", 47, 53))
sketch2.addConstraint(Sketcher.Constraint("Parallel", 49, 55))
sketch2.addConstraint(Sketcher.Constraint("Parallel", 53, 59))
sketch2.addConstraint(Sketcher.Constraint("Horizontal", 5, 2, 60, 1))
sketch2.addConstraint(Sketcher.Constraint("Horizontal", 54, 2, 60, 2))
sketch2.addConstraint(Sketcher.Constraint("Vertical", 4, 3, 8, 3))
sketch2.addConstraint(Sketcher.Constraint("Vertical", 10, 3, 14, 3))
sketch2.addConstraint(Sketcher.Constraint("Vertical", 16, 3, 20, 3))
sketch2.addConstraint(Sketcher.Constraint("Vertical", 22, 3, 26, 3))
sketch2.addConstraint(Sketcher.Constraint("Vertical", 28, 3, 32, 3))
sketch2.addConstraint(Sketcher.Constraint("Vertical", 34, 3, 38, 3))
sketch2.addConstraint(Sketcher.Constraint("Vertical", 40, 3, 44, 3))
sketch2.addConstraint(Sketcher.Constraint("Vertical", 46, 3, 50, 3))
sketch2.addConstraint(Sketcher.Constraint("Vertical", 52, 3, 56, 3))
sketch2.addConstraint(Sketcher.Constraint("Vertical", 1, 2, 4, 2))
sketch2.addConstraint(Sketcher.Constraint("Vertical", 5, 2, 6, 2))
sketch2.addConstraint(Sketcher.Constraint("Vertical", 11, 2, 12, 2))
sketch2.addConstraint(Sketcher.Constraint("Vertical", 17, 2, 18, 2))
sketch2.addConstraint(Sketcher.Constraint("Vertical", 23, 2, 24, 2))
sketch2.addConstraint(Sketcher.Constraint("Vertical", 29, 2, 30, 2))
sketch2.addConstraint(Sketcher.Constraint("Vertical", 35, 2, 36, 2))
sketch2.addConstraint(Sketcher.Constraint("Vertical", 41, 2, 42, 2))
sketch2.addConstraint(Sketcher.Constraint("Vertical", 47, 2, 48, 2))
sketch2.addConstraint(Sketcher.Constraint("Vertical", 53, 2, 54, 2))
sketch2.addConstraint(Sketcher.Constraint("Equal", 0, 6))
sketch2.addConstraint(Sketcher.Constraint("Equal", 6, 12))
sketch2.addConstraint(Sketcher.Constraint("Equal", 12, 18))
sketch2.addConstraint(Sketcher.Constraint("Equal", 18, 24))
sketch2.addConstraint(Sketcher.Constraint("Equal", 24, 30))
sketch2.addConstraint(Sketcher.Constraint("Equal", 30, 36))
sketch2.addConstraint(Sketcher.Constraint("Equal", 36, 42))
sketch2.addConstraint(Sketcher.Constraint("Equal", 42, 48))
sketch2.addConstraint(Sketcher.Constraint("Equal", 48, 54))
sketch2.addConstraint(Sketcher.Constraint("Radius", 2, Q("0.015 in")))
sketch2.addConstraint(Sketcher.Constraint("DistanceY", 0, 1, 0, 2, Q("0.08 in")))
sketch2.addConstraint(Sketcher.Constraint("DistanceY", 60, 1, 60, 2, Q("1.16 in")))
sketch2.addConstraint(Sketcher.Constraint("DistanceY", -1, 1, 0, 2, Q("0.8 in")))
sketch2.addConstraint(Sketcher.Constraint("DistanceY", -1, 1, 29, 2, Q("1.2 in")))
sketch2.addConstraint(Sketcher.Constraint("DistanceY", -1, 1, 30, 2, Q("1.4 in")))
sketch2.addConstraint(Sketcher.Constraint("DistanceX", -1, 1, 2, 3, Q("0.77 in")))
sketch2.addConstraint(Sketcher.Constraint("DistanceX", -1, 1, 0, 2, Q("0.88 in")))
sketch2.addConstraint(Sketcher.Constraint("DistanceY", -1, 1, 6, 2, Q("0.92 in")))
sketch2.addConstraint(Sketcher.Constraint("DistanceY", -1, 1, 12, 2, Q("1.04 in")))
sketch2.addConstraint(Sketcher.Constraint("DistanceY", -1, 1, 18, 2, Q("1.16 in")))
sketch2.addConstraint(Sketcher.Constraint("DistanceY", -1, 1, 36, 2, Q("1.52 in")))
sketch2.addConstraint(Sketcher.Constraint("DistanceY", -1, 1, 42, 2, Q("1.64 in")))
sketch2.addConstraint(Sketcher.Constraint("DistanceY", -1, 1, 48, 2, Q("1.76 in")))
sketch2.addConstraint(Sketcher.Constraint("DistanceX", -1, 1, 60, 1, Q("3.625 in")))
sketch2.addConstraint(Sketcher.Constraint("DistanceY", 3, 2, 3, 1, Q("0.137309 mm")))
groove = body.newObject("PartDesign::Groove", "Groove")
groove.Profile = sketch2
groove.ReferenceAxis = (sketch2, ["Axis0"])
groove.Angle = 360

doc.recompute()
